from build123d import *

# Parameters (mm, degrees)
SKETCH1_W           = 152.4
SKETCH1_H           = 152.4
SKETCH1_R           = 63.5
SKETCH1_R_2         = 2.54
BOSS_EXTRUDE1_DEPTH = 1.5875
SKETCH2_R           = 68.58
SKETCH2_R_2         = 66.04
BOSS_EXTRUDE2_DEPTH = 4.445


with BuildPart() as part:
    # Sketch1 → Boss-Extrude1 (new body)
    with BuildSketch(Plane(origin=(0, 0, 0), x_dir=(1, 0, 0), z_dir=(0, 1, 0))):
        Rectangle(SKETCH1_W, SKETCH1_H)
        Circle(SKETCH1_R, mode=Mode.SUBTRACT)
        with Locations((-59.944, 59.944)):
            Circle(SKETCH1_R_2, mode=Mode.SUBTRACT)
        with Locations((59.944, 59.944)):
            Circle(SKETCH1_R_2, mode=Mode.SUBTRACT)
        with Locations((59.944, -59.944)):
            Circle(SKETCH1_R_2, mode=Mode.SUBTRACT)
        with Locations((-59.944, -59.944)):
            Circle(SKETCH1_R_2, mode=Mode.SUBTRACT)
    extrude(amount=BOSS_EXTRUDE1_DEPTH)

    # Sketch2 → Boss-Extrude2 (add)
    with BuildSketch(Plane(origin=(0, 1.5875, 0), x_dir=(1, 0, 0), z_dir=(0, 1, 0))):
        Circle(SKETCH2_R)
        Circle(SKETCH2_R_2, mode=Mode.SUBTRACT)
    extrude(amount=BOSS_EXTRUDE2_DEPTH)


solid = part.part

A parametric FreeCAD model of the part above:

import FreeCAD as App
import Part
import Sketcher

V = App.Vector
Q = App.Units.Quantity

doc = App.newDocument("Part")
body = doc.addObject("PartDesign::Body", "Body")

# Sketch on XZ plane
sketch1 = body.newObject("Sketcher::SketchObject", "Sketch")
sketch1.AttachmentSupport = (doc.getObject("XZ_Plane"), [""])
sketch1.MapMode = "FlatFace"
sketch1.addGeometry(Part.LineSegment(V(-76.2, -76.2, 0), V(-76.2, 76.2, 0)), False)
sketch1.addGeometry(Part.LineSegment(V(-76.2, 76.2, 0), V(76.2, 76.2, 0)), False)
sketch1.addGeometry(Part.LineSegment(V(76.2, 76.2, 0), V(76.2, -76.2, 0)), False)
sketch1.addGeometry(Part.LineSegment(V(76.2, -76.2, 0), V(-76.2, -76.2, 0)), False)
sketch1.addGeometry(Part.Circle(V(-59.9, 59.9, 0), V(0, 0, 1), 2.5), False)
sketch1.addGeometry(Part.Circle(V(59.9, 59.9, 0), V(0, 0, 1), 2.5), False)
sketch1.addGeometry(Part.Circle(V(-59.9, -59.9, 0), V(0, 0, 1), 2.5), False)
sketch1.addGeometry(Part.Circle(V(0, 0, 0), V(0, 0, 1), 63.5), False)
sketch1.addGeometry(Part.Circle(V(59.9, -59.9, 0), V(0, 0, 1), 2.5), False)
sketch1.addConstraint(Sketcher.Constraint("Coincident", 0, 2, 1, 1))
sketch1.addConstraint(Sketcher.Constraint("Coincident", 1, 2, 2, 1))
sketch1.addConstraint(Sketcher.Constraint("Coincident", 2, 2, 3, 1))
sketch1.addConstraint(Sketcher.Constraint("Coincident", 3, 2, 0, 1))
sketch1.addConstraint(Sketcher.Constraint("Vertical", 0))
sketch1.addConstraint(Sketcher.Constraint("Horizontal", 1))
sketch1.addConstraint(Sketcher.Constraint("Vertical", 2))
sketch1.addConstraint(Sketcher.Constraint("Horizontal", 3))
sketch1.addConstraint(Sketcher.Constraint("Coincident", 7, 3, -1, 1))
sketch1.addConstraint(Sketcher.Constraint("Equal", 4, 5))
sketch1.addConstraint(Sketcher.Constraint("Equal", 5, 6))
sketch1.addConstraint(Sketcher.Constraint("Equal", 6, 8))
sketch1.addConstraint(Sketcher.Constraint("Symmetric", 5, 3, 6, 3, -1, 1))
sketch1.addConstraint(Sketcher.Constraint("Symmetric", 4, 3, 8, 3, -1, 1))
sketch1.addConstraint(Sketcher.Constraint("Symmetric", 0, 2, 2, 2, -1, 1))
sketch1.addConstraint(Sketcher.Constraint("Symmetric", 4, 3, 5, 3, -2))
sketch1.addConstraint(Sketcher.Constraint("Equal", 3, 0))
sketch1.addConstraint(Sketcher.Constraint("Diameter", 7, Q("5 in")))
sketch1.addConstraint(Sketcher.Constraint("Diameter", 4, Q("0.2 in")))
sketch1.addConstraint(Sketcher.Constraint("DistanceX", 1, 1, 1, 2, Q("6 in")))
sketch1.addConstraint(Sketcher.Constraint("DistanceX", 4, 3, -1, 1, Q("2.36 in")))
sketch1.addConstraint(Sketcher.Constraint("DistanceY", -1, 1, 4, 3, Q("2.36 in")))
pad1 = body.newObject("PartDesign::Pad", "Pad")
pad1.Profile = sketch1
pad1.Length = Q("0.0625 in")
pad1.Reversed = True

# Sketch on XZ plane
sketch2 = body.newObject("Sketcher::SketchObject", "Sketch001")
sketch2.AttachmentSupport = (doc.getObject("XZ_Plane"), [""])
sketch2.MapMode = "FlatFace"
sketch2.AttachmentOffset = App.Placement(V(0, 0, -0.0625 * 25.4), App.Rotation())
sketch2.addGeometry(Part.Circle(V(0, 0, 0), V(0, 0, 1), 69), False)
sketch2.addGeometry(Part.Circle(V(0, 0, 0), V(0, 0, 1), 66), False)
sketch2.addConstraint(Sketcher.Constraint("Coincident", 0, 3, -1, 1))
sketch2.addConstraint(Sketcher.Constraint("Coincident", 1, 3, -1, 1))
sketch2.addConstraint(Sketcher.Constraint("Diameter", 0, Q("5.4 in")))
sketch2.addConstraint(Sketcher.Constraint("Diameter", 1, Q("5.2 in")))
pad2 = body.newObject("PartDesign::Pad", "Pad001")
pad2.Profile = sketch2
pad2.Length = Q("0.175 in")
pad2.Reversed = True

doc.recompute()
